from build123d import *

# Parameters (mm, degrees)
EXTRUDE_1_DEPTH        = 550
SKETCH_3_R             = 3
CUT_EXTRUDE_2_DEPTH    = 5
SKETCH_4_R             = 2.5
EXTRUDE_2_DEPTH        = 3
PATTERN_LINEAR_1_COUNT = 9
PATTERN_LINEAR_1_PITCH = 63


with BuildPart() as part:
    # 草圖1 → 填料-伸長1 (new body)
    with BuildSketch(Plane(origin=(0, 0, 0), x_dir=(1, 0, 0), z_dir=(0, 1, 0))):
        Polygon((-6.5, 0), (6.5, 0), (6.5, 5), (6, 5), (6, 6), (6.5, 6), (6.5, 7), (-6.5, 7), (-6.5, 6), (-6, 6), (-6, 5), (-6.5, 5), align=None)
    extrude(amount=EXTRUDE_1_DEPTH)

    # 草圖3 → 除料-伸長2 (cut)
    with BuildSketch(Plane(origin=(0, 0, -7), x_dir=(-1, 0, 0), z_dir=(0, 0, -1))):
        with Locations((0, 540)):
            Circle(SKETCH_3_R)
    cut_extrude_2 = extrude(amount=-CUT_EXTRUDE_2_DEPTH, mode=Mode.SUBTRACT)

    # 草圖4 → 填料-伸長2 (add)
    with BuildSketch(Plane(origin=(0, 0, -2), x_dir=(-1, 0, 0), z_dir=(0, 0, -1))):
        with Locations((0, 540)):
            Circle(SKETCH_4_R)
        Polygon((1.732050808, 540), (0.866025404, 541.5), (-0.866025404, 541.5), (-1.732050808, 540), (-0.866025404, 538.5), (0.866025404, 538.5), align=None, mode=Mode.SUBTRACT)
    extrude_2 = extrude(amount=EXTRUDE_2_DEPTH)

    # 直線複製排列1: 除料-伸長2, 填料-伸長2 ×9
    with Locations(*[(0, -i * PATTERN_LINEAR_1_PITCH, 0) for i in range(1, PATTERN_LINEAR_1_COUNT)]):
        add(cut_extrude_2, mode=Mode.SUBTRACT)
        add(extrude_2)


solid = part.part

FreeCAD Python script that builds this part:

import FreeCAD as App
import Part
import Sketcher

V = App.Vector
Q = App.Units.Quantity

doc = App.newDocument("Part")
body = doc.addObject("PartDesign::Body", "Body")

# Sketch on XZ plane
sketch1 = doc.addObject("Sketcher::SketchObject", "Sketch")
body.addObject(sketch1)
sketch1.AttachmentSupport = (doc.XZ_Plane, [""])
sketch1.MapMode = "FlatFace"
sketch1.addGeometry(Part.LineSegment(V(-6.5, 0, 0), V(6.5, 0, 0)), False)
sketch1.addGeometry(Part.LineSegment(V(6.5, 0, 0), V(6.5, -5, 0)), False)
sketch1.addGeometry(Part.LineSegment(V(6.5, -5, 0), V(6, -5, 0)), False)
sketch1.addGeometry(Part.LineSegment(V(6, -5, 0), V(6, -6, 0)), False)
sketch1.addGeometry(Part.LineSegment(V(6, -6, 0), V(6.5, -6, 0)), False)
sketch1.addGeometry(Part.LineSegment(V(6.5, -6, 0), V(6.5, -7, 0)), False)
sketch1.addGeometry(Part.LineSegment(V(6.5, -7, 0), V(-6.5, -7, 0)), False)
sketch1.addGeometry(Part.LineSegment(V(-6.5, -7, 0), V(-6.5, -6, 0)), False)
sketch1.addGeometry(Part.LineSegment(V(-6.5, -6, 0), V(-6, -6, 0)), False)
sketch1.addGeometry(Part.LineSegment(V(-6, -6, 0), V(-6, -5, 0)), False)
sketch1.addGeometry(Part.LineSegment(V(-6, -5, 0), V(-6.5, -5, 0)), False)
sketch1.addGeometry(Part.LineSegment(V(-6.5, -5, 0), V(-6.5, 0, 0)), False)
sketch1.addConstraint(Sketcher.Constraint("Coincident", 0, 2, 1, 1))
sketch1.addConstraint(Sketcher.Constraint("Coincident", 1, 2, 2, 1))
sketch1.addConstraint(Sketcher.Constraint("Coincident", 2, 2, 3, 1))
sketch1.addConstraint(Sketcher.Constraint("Coincident", 3, 2, 4, 1))
sketch1.addConstraint(Sketcher.Constraint("Coincident", 4, 2, 5, 1))
sketch1.addConstraint(Sketcher.Constraint("Coincident", 5, 2, 6, 1))
sketch1.addConstraint(Sketcher.Constraint("Coincident", 6, 2, 7, 1))
sketch1.addConstraint(Sketcher.Constraint("Coincident", 7, 2, 8, 1))
sketch1.addConstraint(Sketcher.Constraint("Coincident", 8, 2, 9, 1))
sketch1.addConstraint(Sketcher.Constraint("Coincident", 9, 2, 10, 1))
sketch1.addConstraint(Sketcher.Constraint("Coincident", 10, 2, 11, 1))
sketch1.addConstraint(Sketcher.Constraint("Coincident", 11, 2, 0, 1))
sketch1.addConstraint(Sketcher.Constraint("Horizontal", 0))
sketch1.addConstraint(Sketcher.Constraint("Vertical", 1))
sketch1.addConstraint(Sketcher.Constraint("Horizontal", 2))
sketch1.addConstraint(Sketcher.Constraint("Vertical", 3))
sketch1.addConstraint(Sketcher.Constraint("Horizontal", 4))
sketch1.addConstraint(Sketcher.Constraint("Vertical", 5))
sketch1.addConstraint(Sketcher.Constraint("Horizontal", 6))
sketch1.addConstraint(Sketcher.Constraint("Vertical", 7))
sketch1.addConstraint(Sketcher.Constraint("Horizontal", 8))
sketch1.addConstraint(Sketcher.Constraint("Vertical", 9))
sketch1.addConstraint(Sketcher.Constraint("Horizontal", 10))
sketch1.addConstraint(Sketcher.Constraint("Vertical", 11))
sketch1.addConstraint(Sketcher.Constraint("Symmetric", 0, 2, 11, 2, -1, 1))
sketch1.addConstraint(Sketcher.Constraint("Symmetric", 4, 2, 7, 2, -2))
sketch1.addConstraint(Sketcher.Constraint("Symmetric", 2, 2, 9, 2, -2))
sketch1.addConstraint(Sketcher.Constraint("Vertical", 1, 2, 4, 2))
sketch1.addConstraint(Sketcher.Constraint("Equal", 3, 5))
sketch1.addConstraint(Sketcher.Constraint("DistanceX", 0, 1, 0, 2, 13.0))
sketch1.addConstraint(Sketcher.Constraint("DistanceY", 1, 2, 1, 1, 5.0))
sketch1.addConstraint(Sketcher.Constraint("DistanceY", 3, 2, 3, 1, 1.0))
sketch1.addConstraint(Sketcher.Constraint("DistanceX", 2, 2, 2, 1, 0.5))
pad1 = doc.addObject("PartDesign::Pad", "Pad")
body.addObject(pad1)
pad1.Profile = sketch1
pad1.Length = 550
pad1.Reversed = True

# Sketch on XY plane
sketch2 = doc.addObject("Sketcher::SketchObject", "Sketch001")
body.addObject(sketch2)
sketch2.AttachmentSupport = (doc.XY_Plane, [""])
sketch2.MapMode = "FlatFace"
sketch2.AttachmentOffset = App.Placement(V(0, 0, -7), App.Rotation())
sketch2.addGeometry(Part.Circle(V(0, 540, 0), V(0, 0, 1), 3), False)
sketch2.addConstraint(Sketcher.Constraint("PointOnObject", 0, 3, -2))
sketch2.addConstraint(Sketcher.Constraint("Diameter", 0, 6.0))
sketch2.addConstraint(Sketcher.Constraint("DistanceY", -1, 1, 0, 3, 540.0))
pocket1 = doc.addObject("PartDesign::Pocket", "Pocket")
body.addObject(pocket1)
pocket1.Profile = sketch2
pocket1.Length = 5
pocket1.Reversed = True

# Sketch on XY plane
sketch3 = doc.addObject("Sketcher::SketchObject", "Sketch002")
body.addObject(sketch3)
sketch3.AttachmentSupport = (doc.XY_Plane, [""])
sketch3.MapMode = "FlatFace"
sketch3.AttachmentOffset = App.Placement(V(0, 0, -2), App.Rotation())
sketch3.addGeometry(Part.Circle(V(0, 540, 0), V(0, 0, 1), 2.5), False)
sketch3.addGeometry(Part.LineSegment(V(-0.866025, 541.5, 0), V(-1.732051, 540, 0)), False)
sketch3.addGeometry(Part.LineSegment(V(-1.732051, 540, 0), V(-0.866025, 538.5, 0)), False)
sketch3.addGeometry(Part.LineSegment(V(-0.866025, 538.5, 0), V(0.866025, 538.5, 0)), False)
sketch3.addGeometry(Part.LineSegment(V(0.866025, 538.5, 0), V(1.732051, 540, 0)), False)
sketch3.addGeometry(Part.LineSegment(V(1.732051, 540, 0), V(0.866025, 541.5, 0)), False)
sketch3.addGeometry(Part.LineSegment(V(0.866025, 541.5, 0), V(-0.866025, 541.5, 0)), False)
sketch3.addConstraint(Sketcher.Constraint("Coincident", 1, 2, 2, 1))
sketch3.addConstraint(Sketcher.Constraint("Coincident", 2, 2, 3, 1))
sketch3.addConstraint(Sketcher.Constraint("Coincident", 3, 2, 4, 1))
sketch3.addConstraint(Sketcher.Constraint("Coincident", 4, 2, 5, 1))
sketch3.addConstraint(Sketcher.Constraint("Coincident", 5, 2, 6, 1))
sketch3.addConstraint(Sketcher.Constraint("Coincident", 6, 2, 1, 1))
sketch3.addConstraint(Sketcher.Constraint("Horizontal", 3))
sketch3.addConstraint(Sketcher.Constraint("Horizontal", 6))
sketch3.addConstraint(Sketcher.Constraint("Symmetric", 1, 2, 4, 2, -2))
sketch3.addConstraint(Sketcher.Constraint("PointOnObject", 0, 3, -2))
sketch3.addConstraint(Sketcher.Constraint("Parallel", 1, 4))
sketch3.addConstraint(Sketcher.Constraint("Parallel", 2, 5))
sketch3.addConstraint(Sketcher.Constraint("Horizontal", 0, 3, 1, 2))
sketch3.addConstraint(Sketcher.Constraint("Vertical", 3, 2, 5, 2))
sketch3.addConstraint(Sketcher.Constraint("Vertical", 2, 2, 6, 2))
sketch3.addConstraint(Sketcher.Constraint("Diameter", 0, 5.0))
sketch3.addConstraint(Sketcher.Constraint("Angle", 1, Q("-120 deg")))
sketch3.addConstraint(Sketcher.Constraint("DistanceY", -1, 1, 0, 3, 540.0))
sketch3.addConstraint(Sketcher.Constraint("DistanceY", 3, 2, 5, 2, 3.0))
sketch3.addConstraint(Sketcher.Constraint("DistanceX", 3, 1, 3, 2, 1.732051))
pad2 = doc.addObject("PartDesign::Pad", "Pad001")
body.addObject(pad2)
pad2.Profile = sketch3
pad2.Length = 3
pad2.Reversed = True
doc.recompute()

linearpattern = doc.addObject("PartDesign::LinearPattern", "LinearPattern")
body.addObject(linearpattern)
linearpattern.Originals = [pocket1, pad2]
linearpattern.Direction = (doc.Y_Axis, [""])
linearpattern.Mode = "offset"
linearpattern.Offset = 63
linearpattern.Occurrences = 9
linearpattern.Reversed = True
body.Tip = linearpattern

doc.recompute()
